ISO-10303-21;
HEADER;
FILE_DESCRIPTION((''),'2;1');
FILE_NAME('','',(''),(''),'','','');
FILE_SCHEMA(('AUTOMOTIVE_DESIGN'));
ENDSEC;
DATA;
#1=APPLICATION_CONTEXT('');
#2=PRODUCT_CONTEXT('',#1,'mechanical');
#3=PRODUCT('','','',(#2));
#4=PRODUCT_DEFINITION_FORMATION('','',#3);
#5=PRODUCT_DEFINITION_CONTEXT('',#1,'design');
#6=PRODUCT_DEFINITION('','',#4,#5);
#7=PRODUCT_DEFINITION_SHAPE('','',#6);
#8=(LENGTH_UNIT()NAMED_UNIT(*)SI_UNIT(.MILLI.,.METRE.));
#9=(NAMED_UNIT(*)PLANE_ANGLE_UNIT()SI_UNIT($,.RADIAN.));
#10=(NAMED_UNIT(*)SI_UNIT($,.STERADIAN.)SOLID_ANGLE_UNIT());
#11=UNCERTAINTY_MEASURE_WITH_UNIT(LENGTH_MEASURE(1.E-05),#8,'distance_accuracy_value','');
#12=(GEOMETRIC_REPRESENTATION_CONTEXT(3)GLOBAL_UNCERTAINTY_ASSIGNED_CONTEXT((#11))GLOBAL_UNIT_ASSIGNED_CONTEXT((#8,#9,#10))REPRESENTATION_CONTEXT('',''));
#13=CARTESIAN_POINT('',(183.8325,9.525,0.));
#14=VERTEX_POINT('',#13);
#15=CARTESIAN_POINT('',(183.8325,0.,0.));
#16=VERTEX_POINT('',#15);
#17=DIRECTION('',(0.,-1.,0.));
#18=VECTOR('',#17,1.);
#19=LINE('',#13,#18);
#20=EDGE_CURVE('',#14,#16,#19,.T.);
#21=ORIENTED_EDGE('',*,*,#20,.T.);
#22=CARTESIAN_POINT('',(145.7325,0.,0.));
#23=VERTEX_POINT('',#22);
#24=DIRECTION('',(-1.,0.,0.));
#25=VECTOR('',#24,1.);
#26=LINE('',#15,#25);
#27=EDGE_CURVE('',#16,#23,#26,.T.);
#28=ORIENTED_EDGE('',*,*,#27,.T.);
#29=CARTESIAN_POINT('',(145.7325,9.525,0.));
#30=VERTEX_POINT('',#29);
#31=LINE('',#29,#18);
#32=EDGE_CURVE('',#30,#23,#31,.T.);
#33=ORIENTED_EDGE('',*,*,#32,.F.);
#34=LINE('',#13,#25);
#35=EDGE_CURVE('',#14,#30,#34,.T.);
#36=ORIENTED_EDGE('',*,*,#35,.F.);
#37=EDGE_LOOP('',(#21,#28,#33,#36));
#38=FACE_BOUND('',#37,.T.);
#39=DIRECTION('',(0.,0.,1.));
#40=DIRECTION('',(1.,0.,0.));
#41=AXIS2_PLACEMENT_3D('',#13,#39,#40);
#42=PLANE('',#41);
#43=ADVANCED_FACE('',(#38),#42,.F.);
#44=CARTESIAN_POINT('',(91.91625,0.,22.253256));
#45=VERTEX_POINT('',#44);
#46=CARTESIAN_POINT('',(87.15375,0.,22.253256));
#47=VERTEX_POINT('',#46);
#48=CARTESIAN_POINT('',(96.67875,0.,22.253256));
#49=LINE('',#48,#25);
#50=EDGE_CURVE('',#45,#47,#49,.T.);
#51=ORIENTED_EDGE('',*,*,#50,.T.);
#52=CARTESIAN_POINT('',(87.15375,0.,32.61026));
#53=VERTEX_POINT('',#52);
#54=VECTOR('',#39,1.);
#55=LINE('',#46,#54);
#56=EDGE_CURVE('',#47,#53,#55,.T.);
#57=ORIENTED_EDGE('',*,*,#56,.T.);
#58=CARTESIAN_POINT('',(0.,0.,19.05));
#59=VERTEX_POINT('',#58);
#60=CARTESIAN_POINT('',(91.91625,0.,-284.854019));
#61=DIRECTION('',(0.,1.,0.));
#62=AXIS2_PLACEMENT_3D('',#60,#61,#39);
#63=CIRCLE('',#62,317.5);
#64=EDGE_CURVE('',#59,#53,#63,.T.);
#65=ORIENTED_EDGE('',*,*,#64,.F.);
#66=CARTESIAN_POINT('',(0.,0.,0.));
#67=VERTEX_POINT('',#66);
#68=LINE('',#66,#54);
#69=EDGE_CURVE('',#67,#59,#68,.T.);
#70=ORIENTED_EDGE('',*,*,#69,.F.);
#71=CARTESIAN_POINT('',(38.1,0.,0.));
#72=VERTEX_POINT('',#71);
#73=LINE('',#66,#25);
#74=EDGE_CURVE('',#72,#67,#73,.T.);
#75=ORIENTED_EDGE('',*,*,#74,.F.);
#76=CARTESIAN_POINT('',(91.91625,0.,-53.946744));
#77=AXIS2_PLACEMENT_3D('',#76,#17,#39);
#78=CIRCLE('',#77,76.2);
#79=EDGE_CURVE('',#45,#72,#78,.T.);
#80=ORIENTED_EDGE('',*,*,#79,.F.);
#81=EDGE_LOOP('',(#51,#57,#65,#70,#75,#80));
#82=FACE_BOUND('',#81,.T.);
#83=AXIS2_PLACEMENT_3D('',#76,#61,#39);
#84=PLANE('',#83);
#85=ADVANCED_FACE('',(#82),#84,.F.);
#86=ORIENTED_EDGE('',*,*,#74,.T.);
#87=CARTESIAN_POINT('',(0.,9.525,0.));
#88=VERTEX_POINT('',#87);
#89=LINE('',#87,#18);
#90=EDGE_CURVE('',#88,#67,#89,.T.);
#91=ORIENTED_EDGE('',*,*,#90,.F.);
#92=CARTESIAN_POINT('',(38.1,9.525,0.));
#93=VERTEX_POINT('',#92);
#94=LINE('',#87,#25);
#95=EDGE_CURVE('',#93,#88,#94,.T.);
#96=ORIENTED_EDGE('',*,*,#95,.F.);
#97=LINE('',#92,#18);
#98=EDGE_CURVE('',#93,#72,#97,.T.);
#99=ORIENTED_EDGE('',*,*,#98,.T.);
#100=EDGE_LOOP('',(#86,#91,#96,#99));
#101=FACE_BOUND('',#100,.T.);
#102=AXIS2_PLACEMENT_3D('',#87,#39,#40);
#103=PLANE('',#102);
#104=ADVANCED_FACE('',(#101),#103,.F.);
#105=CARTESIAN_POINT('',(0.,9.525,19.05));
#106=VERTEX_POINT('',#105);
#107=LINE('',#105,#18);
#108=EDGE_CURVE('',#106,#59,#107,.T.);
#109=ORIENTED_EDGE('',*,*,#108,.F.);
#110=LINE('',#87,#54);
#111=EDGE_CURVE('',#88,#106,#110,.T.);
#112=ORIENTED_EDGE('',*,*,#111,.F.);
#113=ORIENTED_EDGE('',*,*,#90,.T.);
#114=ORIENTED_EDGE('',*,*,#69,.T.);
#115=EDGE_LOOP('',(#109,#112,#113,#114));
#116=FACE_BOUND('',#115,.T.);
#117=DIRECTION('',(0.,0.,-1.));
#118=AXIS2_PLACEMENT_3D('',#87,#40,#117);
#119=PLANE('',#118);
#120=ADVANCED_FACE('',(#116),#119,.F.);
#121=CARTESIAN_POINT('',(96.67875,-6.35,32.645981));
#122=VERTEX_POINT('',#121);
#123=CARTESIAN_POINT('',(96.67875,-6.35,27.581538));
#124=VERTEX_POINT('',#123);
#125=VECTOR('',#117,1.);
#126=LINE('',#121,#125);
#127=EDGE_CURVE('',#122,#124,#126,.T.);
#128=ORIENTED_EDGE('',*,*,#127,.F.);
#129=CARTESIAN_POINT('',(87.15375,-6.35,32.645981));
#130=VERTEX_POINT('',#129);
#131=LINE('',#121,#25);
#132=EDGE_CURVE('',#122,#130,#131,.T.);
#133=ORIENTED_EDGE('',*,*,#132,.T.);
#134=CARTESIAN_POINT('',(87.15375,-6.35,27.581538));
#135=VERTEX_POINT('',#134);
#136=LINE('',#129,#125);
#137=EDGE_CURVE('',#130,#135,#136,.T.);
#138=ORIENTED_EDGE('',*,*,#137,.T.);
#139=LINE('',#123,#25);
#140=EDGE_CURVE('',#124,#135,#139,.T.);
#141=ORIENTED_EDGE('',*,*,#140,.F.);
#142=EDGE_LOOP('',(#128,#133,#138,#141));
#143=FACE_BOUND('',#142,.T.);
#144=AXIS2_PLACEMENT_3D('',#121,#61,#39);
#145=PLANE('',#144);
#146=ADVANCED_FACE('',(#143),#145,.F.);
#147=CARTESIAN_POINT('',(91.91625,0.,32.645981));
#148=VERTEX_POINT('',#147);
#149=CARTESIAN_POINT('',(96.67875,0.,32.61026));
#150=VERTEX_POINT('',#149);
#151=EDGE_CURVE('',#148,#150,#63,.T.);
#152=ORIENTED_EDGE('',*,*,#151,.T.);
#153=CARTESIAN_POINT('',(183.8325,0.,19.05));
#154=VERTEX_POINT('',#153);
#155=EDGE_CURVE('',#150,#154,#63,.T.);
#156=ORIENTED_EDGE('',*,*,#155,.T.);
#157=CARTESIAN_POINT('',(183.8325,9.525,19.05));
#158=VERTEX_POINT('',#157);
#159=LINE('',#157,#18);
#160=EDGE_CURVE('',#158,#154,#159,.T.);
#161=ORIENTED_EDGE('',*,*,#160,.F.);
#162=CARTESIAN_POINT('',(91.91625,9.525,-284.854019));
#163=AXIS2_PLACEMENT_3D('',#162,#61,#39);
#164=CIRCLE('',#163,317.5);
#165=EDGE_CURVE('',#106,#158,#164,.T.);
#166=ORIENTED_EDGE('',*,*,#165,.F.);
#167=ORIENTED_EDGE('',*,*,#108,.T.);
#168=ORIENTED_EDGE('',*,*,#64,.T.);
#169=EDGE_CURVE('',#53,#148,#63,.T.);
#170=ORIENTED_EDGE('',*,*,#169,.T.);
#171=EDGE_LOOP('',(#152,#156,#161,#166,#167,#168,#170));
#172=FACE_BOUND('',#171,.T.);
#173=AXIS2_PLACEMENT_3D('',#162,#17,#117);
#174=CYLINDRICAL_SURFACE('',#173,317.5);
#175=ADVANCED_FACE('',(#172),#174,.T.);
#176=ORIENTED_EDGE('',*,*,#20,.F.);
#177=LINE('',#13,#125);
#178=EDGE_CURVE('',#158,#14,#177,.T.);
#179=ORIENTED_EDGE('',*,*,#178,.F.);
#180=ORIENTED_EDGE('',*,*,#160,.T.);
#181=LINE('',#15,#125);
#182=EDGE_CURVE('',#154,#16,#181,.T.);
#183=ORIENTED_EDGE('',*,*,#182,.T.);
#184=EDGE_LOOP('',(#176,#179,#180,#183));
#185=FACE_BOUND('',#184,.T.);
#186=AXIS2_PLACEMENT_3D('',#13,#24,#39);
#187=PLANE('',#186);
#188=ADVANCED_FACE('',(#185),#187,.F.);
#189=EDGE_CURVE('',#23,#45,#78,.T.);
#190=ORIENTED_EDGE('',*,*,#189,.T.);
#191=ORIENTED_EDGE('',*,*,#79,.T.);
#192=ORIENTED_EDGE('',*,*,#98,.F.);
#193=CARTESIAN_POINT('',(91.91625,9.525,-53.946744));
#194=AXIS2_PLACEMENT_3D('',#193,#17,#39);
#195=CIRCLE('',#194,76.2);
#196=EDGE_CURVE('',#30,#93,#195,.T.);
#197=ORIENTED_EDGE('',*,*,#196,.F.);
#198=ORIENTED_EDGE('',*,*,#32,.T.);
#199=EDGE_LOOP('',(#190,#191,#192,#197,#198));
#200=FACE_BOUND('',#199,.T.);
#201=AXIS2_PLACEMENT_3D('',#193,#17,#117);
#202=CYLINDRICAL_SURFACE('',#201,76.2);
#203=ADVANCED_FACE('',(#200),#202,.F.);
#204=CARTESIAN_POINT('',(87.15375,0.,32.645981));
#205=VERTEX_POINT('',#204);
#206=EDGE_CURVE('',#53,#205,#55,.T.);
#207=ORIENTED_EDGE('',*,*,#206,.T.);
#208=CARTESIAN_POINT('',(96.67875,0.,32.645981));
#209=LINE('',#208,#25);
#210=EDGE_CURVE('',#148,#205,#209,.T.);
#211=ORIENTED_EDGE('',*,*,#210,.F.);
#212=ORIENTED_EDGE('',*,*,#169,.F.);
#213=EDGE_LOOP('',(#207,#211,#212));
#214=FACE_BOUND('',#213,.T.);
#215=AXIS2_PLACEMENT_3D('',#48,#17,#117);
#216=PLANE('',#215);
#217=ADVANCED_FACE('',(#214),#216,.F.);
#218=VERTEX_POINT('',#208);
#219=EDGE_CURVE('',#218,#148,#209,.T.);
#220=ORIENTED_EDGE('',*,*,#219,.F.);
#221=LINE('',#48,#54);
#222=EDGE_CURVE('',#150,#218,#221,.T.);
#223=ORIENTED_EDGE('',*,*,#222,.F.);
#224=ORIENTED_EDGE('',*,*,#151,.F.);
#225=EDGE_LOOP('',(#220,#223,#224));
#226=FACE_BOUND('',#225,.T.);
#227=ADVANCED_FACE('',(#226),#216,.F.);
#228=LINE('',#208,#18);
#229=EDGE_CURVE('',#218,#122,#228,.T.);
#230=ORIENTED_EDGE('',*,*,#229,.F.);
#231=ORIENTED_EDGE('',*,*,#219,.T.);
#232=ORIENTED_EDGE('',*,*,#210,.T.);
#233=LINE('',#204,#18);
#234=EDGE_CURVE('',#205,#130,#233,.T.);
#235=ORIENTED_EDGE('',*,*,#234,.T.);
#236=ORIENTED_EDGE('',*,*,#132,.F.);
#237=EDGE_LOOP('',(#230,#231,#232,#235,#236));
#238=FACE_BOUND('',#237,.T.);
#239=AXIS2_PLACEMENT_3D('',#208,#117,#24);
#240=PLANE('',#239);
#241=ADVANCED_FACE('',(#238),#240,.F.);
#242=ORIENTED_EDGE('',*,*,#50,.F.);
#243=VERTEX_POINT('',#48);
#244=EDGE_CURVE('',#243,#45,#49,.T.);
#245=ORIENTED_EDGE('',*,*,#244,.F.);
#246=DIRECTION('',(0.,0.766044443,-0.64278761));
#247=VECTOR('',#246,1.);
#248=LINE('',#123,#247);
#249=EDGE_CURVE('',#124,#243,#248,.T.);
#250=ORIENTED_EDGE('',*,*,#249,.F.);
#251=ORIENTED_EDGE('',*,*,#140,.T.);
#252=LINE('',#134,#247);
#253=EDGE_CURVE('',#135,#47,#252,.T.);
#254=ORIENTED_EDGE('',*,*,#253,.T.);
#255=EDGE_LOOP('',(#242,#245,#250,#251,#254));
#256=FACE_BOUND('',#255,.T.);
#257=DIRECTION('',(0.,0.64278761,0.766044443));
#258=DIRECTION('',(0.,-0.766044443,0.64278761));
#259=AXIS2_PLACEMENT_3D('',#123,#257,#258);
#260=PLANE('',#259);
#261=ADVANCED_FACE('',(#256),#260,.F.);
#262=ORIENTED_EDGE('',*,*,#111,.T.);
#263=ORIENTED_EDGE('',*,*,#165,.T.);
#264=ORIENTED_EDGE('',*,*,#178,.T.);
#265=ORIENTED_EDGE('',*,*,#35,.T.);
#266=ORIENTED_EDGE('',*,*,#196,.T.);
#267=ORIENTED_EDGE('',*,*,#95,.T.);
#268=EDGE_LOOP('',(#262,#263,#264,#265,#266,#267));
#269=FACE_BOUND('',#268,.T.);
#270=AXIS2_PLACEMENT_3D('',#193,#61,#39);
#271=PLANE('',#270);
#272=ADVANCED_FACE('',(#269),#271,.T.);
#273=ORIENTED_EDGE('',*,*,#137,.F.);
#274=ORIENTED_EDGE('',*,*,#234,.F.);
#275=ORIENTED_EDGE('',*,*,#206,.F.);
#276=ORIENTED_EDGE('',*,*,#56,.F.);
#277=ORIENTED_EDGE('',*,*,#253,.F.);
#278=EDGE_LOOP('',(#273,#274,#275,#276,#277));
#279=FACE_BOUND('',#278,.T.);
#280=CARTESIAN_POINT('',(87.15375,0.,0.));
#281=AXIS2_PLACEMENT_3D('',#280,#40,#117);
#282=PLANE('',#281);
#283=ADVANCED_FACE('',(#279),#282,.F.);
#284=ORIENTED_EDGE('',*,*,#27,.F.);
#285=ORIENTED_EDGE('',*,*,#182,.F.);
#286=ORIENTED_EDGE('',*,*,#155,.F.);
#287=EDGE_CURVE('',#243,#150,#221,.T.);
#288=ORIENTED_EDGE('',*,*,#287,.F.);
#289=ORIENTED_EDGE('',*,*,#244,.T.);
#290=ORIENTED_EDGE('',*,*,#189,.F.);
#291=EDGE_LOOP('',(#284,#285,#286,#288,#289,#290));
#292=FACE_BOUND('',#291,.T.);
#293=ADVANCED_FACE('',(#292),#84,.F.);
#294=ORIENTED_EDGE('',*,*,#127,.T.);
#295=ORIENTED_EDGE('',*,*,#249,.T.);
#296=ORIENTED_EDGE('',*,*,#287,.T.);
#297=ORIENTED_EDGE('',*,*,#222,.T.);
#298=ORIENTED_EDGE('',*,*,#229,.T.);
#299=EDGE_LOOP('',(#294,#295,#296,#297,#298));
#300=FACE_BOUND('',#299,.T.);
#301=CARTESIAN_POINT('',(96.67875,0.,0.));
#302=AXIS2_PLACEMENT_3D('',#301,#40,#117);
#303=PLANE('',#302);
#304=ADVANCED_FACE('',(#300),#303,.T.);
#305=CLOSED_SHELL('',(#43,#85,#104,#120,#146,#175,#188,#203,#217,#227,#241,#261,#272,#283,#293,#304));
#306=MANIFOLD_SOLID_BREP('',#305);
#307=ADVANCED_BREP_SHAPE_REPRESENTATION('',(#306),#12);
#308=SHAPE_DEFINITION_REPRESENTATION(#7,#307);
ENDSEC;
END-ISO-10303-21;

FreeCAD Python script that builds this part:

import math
import FreeCAD as App
import Part
import Sketcher
Q = App.Units.Quantity


def add_polygon(sketch, points):
    """Adds a closed chain of lines whose ends are joined by coincident constraints."""
    first, n = sketch.GeometryCount, len(points)
    for a, b in zip(points, points[1:] + points[:1]):
        sketch.addGeometry(Part.LineSegment(App.Vector(*a, 0), App.Vector(*b, 0)), False)
    for i in range(n):
        sketch.addConstraint(Sketcher.Constraint("Coincident", first + i, 2, first + (i + 1) % n, 1))

doc = App.newDocument("Part")
body = doc.addObject("PartDesign::Body", "Body")

sketch1 = body.newObject("Sketcher::SketchObject", "Sketch")
sketch1.AttachmentSupport = (doc.getObject("XZ_Plane"), [""])
sketch1.MapMode = "FlatFace"
sketch1.addGeometry([
    Part.LineSegment(App.Vector(0, 0, 0), App.Vector(0, 19.05, 0)),
    Part.ArcOfCircle(Part.Circle(App.Vector(91.91625, -284.854019, 0), App.Vector(0, 0, 1), 317.5), math.radians(73.171976), math.radians(106.828024)),
    Part.LineSegment(App.Vector(183.8325, 19.05, 0), App.Vector(183.8325, 0, 0)),
    Part.LineSegment(App.Vector(183.8325, 0, 0), App.Vector(145.7325, 0, 0)),
    Part.ArcOfCircle(Part.Circle(App.Vector(91.91625, -53.946744, 0), App.Vector(0, 0, 1), 76.2), math.radians(45.069382), math.radians(134.930618)),
    Part.LineSegment(App.Vector(38.1, 0, 0), App.Vector(0, 0, 0)),
], False)
sketch1.addConstraint([
    Sketcher.Constraint("Coincident", 0, 2, 1, 2),
    Sketcher.Constraint("Coincident", 1, 1, 2, 1),
    Sketcher.Constraint("Coincident", 2, 2, 3, 1),
    Sketcher.Constraint("Coincident", 3, 2, 4, 1),
    Sketcher.Constraint("Coincident", 4, 2, 5, 1),
    Sketcher.Constraint("Coincident", 5, 2, 0, 1),
    Sketcher.Constraint("Vertical", 0),
    Sketcher.Constraint("Vertical", 2),
    Sketcher.Constraint("Horizontal", 3),
    Sketcher.Constraint("Horizontal", 5),
    Sketcher.Constraint("Coincident", 5, 2, -1, 1),
    Sketcher.Constraint("PointOnObject", 2, 2, -1),
    Sketcher.Constraint("Horizontal", 0, 2, 1, 1),
    Sketcher.Constraint("Vertical", 1, 3, 4, 3),
    Sketcher.Constraint("Radius", 4, Q("3 in")),
    Sketcher.Constraint("Radius", 1, Q("12.5 in")),
    Sketcher.Constraint("DistanceX", 3, 2, 3, 1, Q("1.5 in")),
    Sketcher.Constraint("DistanceY", 0, 1, 0, 2, Q("0.75 in")),
    Sketcher.Constraint("DistanceX", -1, 1, 2, 2, Q("7.2375 in")),
])
pad1 = body.newObject("PartDesign::Pad", "Pad")
pad1.Profile = sketch1
pad1.Length = Q("0.375 in")
pad1.Reversed = True

sketch2 = body.newObject("Sketcher::SketchObject", "Sketch001")
sketch2.AttachmentSupport = (doc.getObject("YZ_Plane"), [""])
sketch2.MapMode = "FlatFace"
sketch2.AttachmentOffset = App.Placement(App.Vector(0, 0, 91.91625), App.Rotation())
add_polygon(sketch2, [(0, 32.645981), (-6.35, 32.645981), (-6.35, 27.581538), (0, 22.253256)])
sketch2.addConstraint([
    Sketcher.Constraint("Horizontal", 0),
    Sketcher.Constraint("Vertical", 1),
    Sketcher.Constraint("Vertical", 3),
    Sketcher.Constraint("PointOnObject", 2, 2, -2),
    Sketcher.Constraint("Angle", 2, Q("-40 deg")),
    Sketcher.Constraint("DistanceX", 0, 2, 0, 1, Q("0.25 in")),
    Sketcher.Constraint("DistanceY", 1, 2, 1, 1, Q("5.064442 mm")),
    Sketcher.Constraint("DistanceY", -1, 1, 0, 2, Q("32.645981 mm")),
])
pad2 = body.newObject("PartDesign::Pad", "Pad001")
pad2.Profile = sketch2
pad2.Length = Q("0.375 in")
pad2.Midplane = True

doc.recompute()
